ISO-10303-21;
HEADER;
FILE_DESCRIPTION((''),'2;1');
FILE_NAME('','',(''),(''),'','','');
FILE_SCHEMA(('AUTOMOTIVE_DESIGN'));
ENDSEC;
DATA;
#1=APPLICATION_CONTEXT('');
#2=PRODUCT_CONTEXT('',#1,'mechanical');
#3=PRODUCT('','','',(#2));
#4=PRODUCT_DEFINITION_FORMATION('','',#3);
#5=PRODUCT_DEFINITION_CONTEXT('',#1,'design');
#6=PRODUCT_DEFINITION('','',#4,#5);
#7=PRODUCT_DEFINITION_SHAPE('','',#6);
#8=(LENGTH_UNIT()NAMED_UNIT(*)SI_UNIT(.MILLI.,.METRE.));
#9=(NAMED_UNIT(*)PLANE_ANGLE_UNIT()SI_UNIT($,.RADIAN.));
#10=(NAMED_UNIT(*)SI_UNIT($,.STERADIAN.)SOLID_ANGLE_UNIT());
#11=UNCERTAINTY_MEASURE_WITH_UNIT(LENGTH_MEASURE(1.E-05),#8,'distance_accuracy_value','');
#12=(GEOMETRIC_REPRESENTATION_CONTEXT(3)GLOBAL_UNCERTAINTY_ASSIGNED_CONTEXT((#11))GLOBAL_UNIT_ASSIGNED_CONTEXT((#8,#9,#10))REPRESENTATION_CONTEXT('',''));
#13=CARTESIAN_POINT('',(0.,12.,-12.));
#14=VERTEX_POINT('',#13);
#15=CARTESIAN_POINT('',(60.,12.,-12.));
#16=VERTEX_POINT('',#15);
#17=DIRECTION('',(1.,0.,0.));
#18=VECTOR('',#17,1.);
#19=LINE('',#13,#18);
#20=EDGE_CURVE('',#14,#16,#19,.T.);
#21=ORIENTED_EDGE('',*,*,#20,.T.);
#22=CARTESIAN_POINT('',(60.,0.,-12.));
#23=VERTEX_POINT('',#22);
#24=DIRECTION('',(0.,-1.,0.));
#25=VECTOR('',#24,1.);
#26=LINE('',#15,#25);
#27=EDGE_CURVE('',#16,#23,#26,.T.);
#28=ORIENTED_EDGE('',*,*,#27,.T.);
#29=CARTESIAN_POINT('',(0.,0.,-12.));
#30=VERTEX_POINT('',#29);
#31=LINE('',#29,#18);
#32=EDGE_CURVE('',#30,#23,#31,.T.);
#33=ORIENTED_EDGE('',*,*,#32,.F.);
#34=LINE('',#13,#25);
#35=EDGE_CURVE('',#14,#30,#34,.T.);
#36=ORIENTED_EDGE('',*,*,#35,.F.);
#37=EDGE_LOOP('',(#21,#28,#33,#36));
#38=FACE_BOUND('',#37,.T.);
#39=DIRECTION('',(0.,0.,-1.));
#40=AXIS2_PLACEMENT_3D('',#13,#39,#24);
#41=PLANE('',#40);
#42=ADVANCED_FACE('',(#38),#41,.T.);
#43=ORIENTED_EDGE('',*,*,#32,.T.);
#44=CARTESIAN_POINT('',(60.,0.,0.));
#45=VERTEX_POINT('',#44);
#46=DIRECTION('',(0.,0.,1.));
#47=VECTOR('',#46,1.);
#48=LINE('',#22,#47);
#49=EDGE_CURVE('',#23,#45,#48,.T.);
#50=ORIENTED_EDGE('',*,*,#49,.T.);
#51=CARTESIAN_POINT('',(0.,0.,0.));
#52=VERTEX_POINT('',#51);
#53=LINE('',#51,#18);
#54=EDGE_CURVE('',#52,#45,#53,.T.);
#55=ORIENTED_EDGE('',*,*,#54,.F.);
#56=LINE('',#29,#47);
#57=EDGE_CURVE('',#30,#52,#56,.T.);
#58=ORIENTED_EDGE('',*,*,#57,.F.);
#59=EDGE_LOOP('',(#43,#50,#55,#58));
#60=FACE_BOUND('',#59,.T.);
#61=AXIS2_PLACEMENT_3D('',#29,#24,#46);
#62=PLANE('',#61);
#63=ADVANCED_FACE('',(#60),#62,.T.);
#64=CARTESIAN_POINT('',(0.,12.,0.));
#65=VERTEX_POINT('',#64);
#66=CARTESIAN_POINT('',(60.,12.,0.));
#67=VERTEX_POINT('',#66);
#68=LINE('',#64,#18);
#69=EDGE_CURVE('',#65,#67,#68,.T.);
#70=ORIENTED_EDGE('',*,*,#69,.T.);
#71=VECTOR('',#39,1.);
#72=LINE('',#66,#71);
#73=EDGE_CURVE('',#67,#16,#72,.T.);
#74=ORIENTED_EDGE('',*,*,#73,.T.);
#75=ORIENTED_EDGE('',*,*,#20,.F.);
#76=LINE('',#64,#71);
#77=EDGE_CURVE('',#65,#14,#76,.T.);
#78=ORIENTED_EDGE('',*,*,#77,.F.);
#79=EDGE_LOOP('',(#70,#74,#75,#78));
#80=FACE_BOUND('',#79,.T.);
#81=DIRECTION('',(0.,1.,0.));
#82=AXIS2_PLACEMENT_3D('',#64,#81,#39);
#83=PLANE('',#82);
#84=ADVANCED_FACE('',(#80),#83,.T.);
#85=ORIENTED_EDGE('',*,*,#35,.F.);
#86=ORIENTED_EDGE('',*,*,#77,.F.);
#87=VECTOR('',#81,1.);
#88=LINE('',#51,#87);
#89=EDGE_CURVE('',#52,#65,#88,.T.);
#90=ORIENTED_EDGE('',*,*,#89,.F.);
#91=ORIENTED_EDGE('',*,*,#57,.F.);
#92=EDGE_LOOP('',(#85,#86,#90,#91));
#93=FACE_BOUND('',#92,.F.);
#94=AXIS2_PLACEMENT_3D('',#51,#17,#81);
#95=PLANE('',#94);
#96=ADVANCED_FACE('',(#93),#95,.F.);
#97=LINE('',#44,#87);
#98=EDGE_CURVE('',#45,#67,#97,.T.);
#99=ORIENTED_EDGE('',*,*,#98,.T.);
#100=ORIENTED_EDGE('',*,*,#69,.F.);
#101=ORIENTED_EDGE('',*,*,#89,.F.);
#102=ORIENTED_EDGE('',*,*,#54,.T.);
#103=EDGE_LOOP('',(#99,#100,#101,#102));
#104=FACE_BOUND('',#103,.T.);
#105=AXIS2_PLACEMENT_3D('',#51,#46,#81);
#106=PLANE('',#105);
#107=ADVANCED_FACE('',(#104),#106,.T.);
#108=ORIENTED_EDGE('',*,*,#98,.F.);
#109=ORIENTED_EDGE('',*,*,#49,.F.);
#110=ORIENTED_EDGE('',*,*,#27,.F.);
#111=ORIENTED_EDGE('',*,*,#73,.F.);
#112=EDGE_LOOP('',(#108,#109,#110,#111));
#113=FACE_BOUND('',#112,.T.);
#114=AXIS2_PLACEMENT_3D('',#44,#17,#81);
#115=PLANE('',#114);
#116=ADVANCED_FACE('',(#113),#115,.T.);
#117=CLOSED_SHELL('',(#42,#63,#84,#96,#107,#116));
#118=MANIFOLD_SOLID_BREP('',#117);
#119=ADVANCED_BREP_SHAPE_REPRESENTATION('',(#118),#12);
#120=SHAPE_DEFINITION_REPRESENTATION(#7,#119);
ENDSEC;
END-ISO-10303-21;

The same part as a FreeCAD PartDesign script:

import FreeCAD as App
import Part
import Sketcher
Q = App.Units.Quantity

doc = App.newDocument("Part")
body = doc.addObject("PartDesign::Body", "Body")

sketch1 = doc.addObject("Sketcher::SketchObject", "Sketch")
body.addObject(sketch1)
sketch1.AttachmentSupport = (doc.YZ_Plane, [""])
sketch1.MapMode = "FlatFace"
sketch1.addGeometry(Part.LineSegment(App.Vector(12, 0, 0), App.Vector(0, 0, 0)), False)
sketch1.addGeometry(Part.LineSegment(App.Vector(0, 0, 0), App.Vector(0, -12, 0)), False)
sketch1.addGeometry(Part.LineSegment(App.Vector(0, -12, 0), App.Vector(12, -12, 0)), False)
sketch1.addGeometry(Part.LineSegment(App.Vector(12, -12, 0), App.Vector(12, 0, 0)), False)
sketch1.addConstraint(Sketcher.Constraint("Coincident", 0, 2, 1, 1))
sketch1.addConstraint(Sketcher.Constraint("Coincident", 1, 2, 2, 1))
sketch1.addConstraint(Sketcher.Constraint("Coincident", 2, 2, 3, 1))
sketch1.addConstraint(Sketcher.Constraint("Coincident", 3, 2, 0, 1))
sketch1.addConstraint(Sketcher.Constraint("Horizontal", 0))
sketch1.addConstraint(Sketcher.Constraint("Vertical", 1))
sketch1.addConstraint(Sketcher.Constraint("Horizontal", 2))
sketch1.addConstraint(Sketcher.Constraint("Vertical", 3))
sketch1.addConstraint(Sketcher.Constraint("Coincident", 0, 2, -1, 1))
sketch1.addConstraint(Sketcher.Constraint("Equal", 2, 1))
sketch1.addConstraint(Sketcher.Constraint("DistanceX", 0, 2, 0, 1, Q("12 mm")))
pad1 = doc.addObject("PartDesign::Pad", "Pad")
body.addObject(pad1)
pad1.Profile = sketch1
pad1.Length = 60

doc.recompute()
